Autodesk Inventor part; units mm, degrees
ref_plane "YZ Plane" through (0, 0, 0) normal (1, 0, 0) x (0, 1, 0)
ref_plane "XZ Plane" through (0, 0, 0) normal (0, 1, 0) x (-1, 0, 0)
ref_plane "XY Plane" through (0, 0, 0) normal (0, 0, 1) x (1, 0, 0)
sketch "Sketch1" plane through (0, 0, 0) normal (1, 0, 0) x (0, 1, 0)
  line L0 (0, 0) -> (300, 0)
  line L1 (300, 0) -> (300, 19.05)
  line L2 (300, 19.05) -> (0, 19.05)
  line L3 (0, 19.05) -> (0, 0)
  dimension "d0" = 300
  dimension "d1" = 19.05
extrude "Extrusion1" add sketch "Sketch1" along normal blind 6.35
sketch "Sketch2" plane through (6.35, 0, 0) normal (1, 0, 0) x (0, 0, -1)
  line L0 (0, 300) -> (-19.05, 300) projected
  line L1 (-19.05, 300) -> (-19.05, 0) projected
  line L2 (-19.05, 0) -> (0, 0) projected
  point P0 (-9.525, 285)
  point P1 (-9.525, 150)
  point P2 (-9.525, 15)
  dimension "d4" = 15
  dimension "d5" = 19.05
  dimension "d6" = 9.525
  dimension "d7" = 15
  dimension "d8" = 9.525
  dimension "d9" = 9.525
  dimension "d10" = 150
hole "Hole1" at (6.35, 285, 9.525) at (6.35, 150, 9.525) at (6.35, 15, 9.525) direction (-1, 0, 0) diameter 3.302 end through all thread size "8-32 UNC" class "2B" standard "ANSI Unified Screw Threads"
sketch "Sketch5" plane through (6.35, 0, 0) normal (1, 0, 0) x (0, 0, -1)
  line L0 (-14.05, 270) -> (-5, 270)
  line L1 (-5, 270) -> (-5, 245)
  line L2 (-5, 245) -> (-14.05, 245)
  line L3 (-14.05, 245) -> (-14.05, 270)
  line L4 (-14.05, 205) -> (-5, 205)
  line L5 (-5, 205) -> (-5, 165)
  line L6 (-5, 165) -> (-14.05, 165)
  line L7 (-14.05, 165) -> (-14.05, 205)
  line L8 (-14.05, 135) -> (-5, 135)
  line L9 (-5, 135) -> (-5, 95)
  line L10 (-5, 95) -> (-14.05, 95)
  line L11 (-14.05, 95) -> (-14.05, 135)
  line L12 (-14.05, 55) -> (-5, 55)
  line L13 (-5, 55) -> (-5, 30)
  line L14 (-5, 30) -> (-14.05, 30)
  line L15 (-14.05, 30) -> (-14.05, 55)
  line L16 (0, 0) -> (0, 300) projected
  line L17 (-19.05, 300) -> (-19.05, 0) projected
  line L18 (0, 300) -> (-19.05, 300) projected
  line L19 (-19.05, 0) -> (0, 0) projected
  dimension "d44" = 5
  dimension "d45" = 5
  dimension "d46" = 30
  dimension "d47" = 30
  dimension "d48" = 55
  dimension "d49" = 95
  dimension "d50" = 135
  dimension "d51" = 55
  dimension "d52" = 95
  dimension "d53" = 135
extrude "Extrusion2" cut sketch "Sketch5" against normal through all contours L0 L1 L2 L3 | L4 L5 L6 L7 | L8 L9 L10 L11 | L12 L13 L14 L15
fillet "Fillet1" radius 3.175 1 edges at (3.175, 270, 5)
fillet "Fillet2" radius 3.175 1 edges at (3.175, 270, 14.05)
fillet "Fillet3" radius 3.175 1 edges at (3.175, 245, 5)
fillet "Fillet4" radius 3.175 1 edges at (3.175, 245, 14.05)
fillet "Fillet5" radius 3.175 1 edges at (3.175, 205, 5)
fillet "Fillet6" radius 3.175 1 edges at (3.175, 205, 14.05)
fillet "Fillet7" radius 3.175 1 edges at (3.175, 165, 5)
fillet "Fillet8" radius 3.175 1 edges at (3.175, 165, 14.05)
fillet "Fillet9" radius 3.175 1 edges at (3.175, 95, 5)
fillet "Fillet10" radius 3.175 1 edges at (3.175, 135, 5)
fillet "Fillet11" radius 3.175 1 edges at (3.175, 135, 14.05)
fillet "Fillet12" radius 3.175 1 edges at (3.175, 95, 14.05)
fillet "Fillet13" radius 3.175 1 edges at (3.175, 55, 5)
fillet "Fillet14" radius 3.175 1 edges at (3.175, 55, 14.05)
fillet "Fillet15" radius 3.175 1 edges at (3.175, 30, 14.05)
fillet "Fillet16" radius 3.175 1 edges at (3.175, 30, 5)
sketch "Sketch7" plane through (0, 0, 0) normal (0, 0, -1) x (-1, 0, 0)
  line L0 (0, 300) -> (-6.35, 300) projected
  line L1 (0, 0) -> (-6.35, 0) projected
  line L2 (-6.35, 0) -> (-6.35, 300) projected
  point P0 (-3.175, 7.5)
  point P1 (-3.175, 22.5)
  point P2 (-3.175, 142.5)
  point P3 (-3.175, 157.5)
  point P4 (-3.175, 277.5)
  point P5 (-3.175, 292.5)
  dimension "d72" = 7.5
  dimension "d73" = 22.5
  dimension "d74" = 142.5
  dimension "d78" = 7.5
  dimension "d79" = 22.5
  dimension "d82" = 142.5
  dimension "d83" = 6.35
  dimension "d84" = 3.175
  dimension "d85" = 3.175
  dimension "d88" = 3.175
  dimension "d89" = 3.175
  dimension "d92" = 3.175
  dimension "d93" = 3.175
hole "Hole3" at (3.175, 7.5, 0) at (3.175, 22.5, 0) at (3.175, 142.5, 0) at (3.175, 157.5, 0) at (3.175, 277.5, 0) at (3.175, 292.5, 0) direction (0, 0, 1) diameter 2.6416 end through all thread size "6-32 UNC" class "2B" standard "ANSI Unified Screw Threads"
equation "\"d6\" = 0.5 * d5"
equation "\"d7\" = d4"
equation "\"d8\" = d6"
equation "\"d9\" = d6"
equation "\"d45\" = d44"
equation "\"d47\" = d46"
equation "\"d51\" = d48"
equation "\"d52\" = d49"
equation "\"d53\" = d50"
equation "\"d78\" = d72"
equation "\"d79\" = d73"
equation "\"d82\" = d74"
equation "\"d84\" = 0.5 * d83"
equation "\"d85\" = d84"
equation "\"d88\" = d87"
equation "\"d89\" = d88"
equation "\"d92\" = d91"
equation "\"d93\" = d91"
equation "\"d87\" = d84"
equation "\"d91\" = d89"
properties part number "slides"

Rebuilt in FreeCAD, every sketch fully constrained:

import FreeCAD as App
import Part
import Sketcher
from FreeCAD import Vector
Q = App.Units.Quantity


def edges_at(feature, points):
    """Names of the edges that pass closest to the given points."""
    edges = feature.Shape.Edges
    near = lambda p: min(range(len(edges)), key=lambda i: edges[i].distToShape(Part.Vertex(*p))[0])
    return sorted({f"Edge{near(p) + 1}" for p in points})

doc = App.newDocument("Part")
body = doc.addObject("PartDesign::Body", "Body")

# Sketch on YZ plane
sketch1 = body.newObject("Sketcher::SketchObject", "Sketch")
sketch1.AttachmentSupport = (doc.getObject("YZ_Plane"), [""])
sketch1.MapMode = "FlatFace"
sketch1.addGeometry(Part.LineSegment(Vector(0, 19.05, 0), Vector(0, 0, 0)), False)
sketch1.addGeometry(Part.LineSegment(Vector(0, 0, 0), Vector(300, 0, 0)), False)
sketch1.addGeometry(Part.LineSegment(Vector(300, 0, 0), Vector(300, 19.05, 0)), False)
sketch1.addGeometry(Part.LineSegment(Vector(300, 19.05, 0), Vector(0, 19.05, 0)), False)
sketch1.addConstraint(Sketcher.Constraint("Coincident", 0, 2, 1, 1))
sketch1.addConstraint(Sketcher.Constraint("Coincident", 1, 2, 2, 1))
sketch1.addConstraint(Sketcher.Constraint("Coincident", 2, 2, 3, 1))
sketch1.addConstraint(Sketcher.Constraint("Coincident", 3, 2, 0, 1))
sketch1.addConstraint(Sketcher.Constraint("Vertical", 0))
sketch1.addConstraint(Sketcher.Constraint("Horizontal", 1))
sketch1.addConstraint(Sketcher.Constraint("Vertical", 2))
sketch1.addConstraint(Sketcher.Constraint("Horizontal", 3))
sketch1.addConstraint(Sketcher.Constraint("Coincident", 0, 2, -1, 1))
sketch1.addConstraint(Sketcher.Constraint("DistanceY", 0, 2, 0, 1, Q("0.75 in")))
sketch1.addConstraint(Sketcher.Constraint("DistanceX", 1, 1, 1, 2, Q("300 mm")))
pad1 = body.newObject("PartDesign::Pad", "Pad")
pad1.Profile = sketch1
pad1.Length = Q("0.25 in")

# Sketch on YZ plane
sketch2 = body.newObject("Sketcher::SketchObject", "Sketch001")
sketch2.AttachmentSupport = (doc.getObject("YZ_Plane"), [""])
sketch2.MapMode = "FlatFace"
sketch2.AttachmentOffset = App.Placement(Vector(0, 0, 0.25 * 25.4), App.Rotation())
sketch2.addGeometry(Part.Circle(Vector(285, 9.525, 0), Vector(0, 0, 1), 1.651), False)
sketch2.addGeometry(Part.Circle(Vector(150, 9.525, 0), Vector(0, 0, 1), 1.651), False)
sketch2.addGeometry(Part.Circle(Vector(15, 9.525, 0), Vector(0, 0, 1), 1.651), False)
sketch2.addConstraint(Sketcher.Constraint("Equal", 0, 1))
sketch2.addConstraint(Sketcher.Constraint("Equal", 1, 2))
sketch2.addConstraint(Sketcher.Constraint("Horizontal", 0, 3, 1, 3))
sketch2.addConstraint(Sketcher.Constraint("Horizontal", 1, 3, 2, 3))
sketch2.addConstraint(Sketcher.Constraint("Diameter", 0, Q("0.13 in")))
sketch2.addConstraint(Sketcher.Constraint("DistanceY", -1, 1, 0, 3, Q("0.375 in")))
sketch2.addConstraint(Sketcher.Constraint("DistanceX", -1, 1, 1, 3, Q("5.9055 in")))
sketch2.addConstraint(Sketcher.Constraint("DistanceX", -1, 1, 0, 3, Q("285 mm")))
sketch2.addConstraint(Sketcher.Constraint("DistanceX", -1, 1, 2, 3, Q("15 mm")))
doc.recompute()
hole = body.newObject("PartDesign::Hole", "Hole")
hole.Profile = sketch2
hole.ThreadType = "None"
hole.Diameter = Q("0.13 in")
hole.DepthType = "ThroughAll"

# Sketch on YZ plane
sketch3 = body.newObject("Sketcher::SketchObject", "Sketch002")
sketch3.AttachmentSupport = (doc.getObject("YZ_Plane"), [""])
sketch3.MapMode = "FlatFace"
sketch3.AttachmentOffset = App.Placement(Vector(0, 0, 0.25 * 25.4), App.Rotation())
sketch3.addGeometry(Part.LineSegment(Vector(270, 5, 0), Vector(270, 14.05, 0)), False)
sketch3.addGeometry(Part.LineSegment(Vector(270, 14.05, 0), Vector(245, 14.05, 0)), False)
sketch3.addGeometry(Part.LineSegment(Vector(245, 14.05, 0), Vector(245, 5, 0)), False)
sketch3.addGeometry(Part.LineSegment(Vector(245, 5, 0), Vector(270, 5, 0)), False)
sketch3.addGeometry(Part.LineSegment(Vector(205, 5, 0), Vector(205, 14.05, 0)), False)
sketch3.addGeometry(Part.LineSegment(Vector(205, 14.05, 0), Vector(165, 14.05, 0)), False)
sketch3.addGeometry(Part.LineSegment(Vector(165, 14.05, 0), Vector(165, 5, 0)), False)
sketch3.addGeometry(Part.LineSegment(Vector(165, 5, 0), Vector(205, 5, 0)), False)
sketch3.addGeometry(Part.LineSegment(Vector(135, 5, 0), Vector(135, 14.05, 0)), False)
sketch3.addGeometry(Part.LineSegment(Vector(135, 14.05, 0), Vector(95, 14.05, 0)), False)
sketch3.addGeometry(Part.LineSegment(Vector(95, 14.05, 0), Vector(95, 5, 0)), False)
sketch3.addGeometry(Part.LineSegment(Vector(95, 5, 0), Vector(135, 5, 0)), False)
sketch3.addGeometry(Part.LineSegment(Vector(55, 5, 0), Vector(55, 14.05, 0)), False)
sketch3.addGeometry(Part.LineSegment(Vector(55, 14.05, 0), Vector(30, 14.05, 0)), False)
sketch3.addGeometry(Part.LineSegment(Vector(30, 14.05, 0), Vector(30, 5, 0)), False)
sketch3.addGeometry(Part.LineSegment(Vector(30, 5, 0), Vector(55, 5, 0)), False)
sketch3.addConstraint(Sketcher.Constraint("Coincident", 0, 2, 1, 1))
sketch3.addConstraint(Sketcher.Constraint("Coincident", 1, 2, 2, 1))
sketch3.addConstraint(Sketcher.Constraint("Coincident", 2, 2, 3, 1))
sketch3.addConstraint(Sketcher.Constraint("Coincident", 3, 2, 0, 1))
sketch3.addConstraint(Sketcher.Constraint("Coincident", 4, 2, 5, 1))
sketch3.addConstraint(Sketcher.Constraint("Coincident", 5, 2, 6, 1))
sketch3.addConstraint(Sketcher.Constraint("Coincident", 6, 2, 7, 1))
sketch3.addConstraint(Sketcher.Constraint("Coincident", 7, 2, 4, 1))
sketch3.addConstraint(Sketcher.Constraint("Coincident", 8, 2, 9, 1))
sketch3.addConstraint(Sketcher.Constraint("Coincident", 9, 2, 10, 1))
sketch3.addConstraint(Sketcher.Constraint("Coincident", 10, 2, 11, 1))
sketch3.addConstraint(Sketcher.Constraint("Coincident", 11, 2, 8, 1))
sketch3.addConstraint(Sketcher.Constraint("Coincident", 12, 2, 13, 1))
sketch3.addConstraint(Sketcher.Constraint("Coincident", 13, 2, 14, 1))
sketch3.addConstraint(Sketcher.Constraint("Coincident", 14, 2, 15, 1))
sketch3.addConstraint(Sketcher.Constraint("Coincident", 15, 2, 12, 1))
sketch3.addConstraint(Sketcher.Constraint("Vertical", 0))
sketch3.addConstraint(Sketcher.Constraint("Horizontal", 1))
sketch3.addConstraint(Sketcher.Constraint("Vertical", 2))
sketch3.addConstraint(Sketcher.Constraint("Horizontal", 3))
sketch3.addConstraint(Sketcher.Constraint("Vertical", 4))
sketch3.addConstraint(Sketcher.Constraint("Horizontal", 5))
sketch3.addConstraint(Sketcher.Constraint("Vertical", 6))
sketch3.addConstraint(Sketcher.Constraint("Horizontal", 7))
sketch3.addConstraint(Sketcher.Constraint("Vertical", 8))
sketch3.addConstraint(Sketcher.Constraint("Horizontal", 9))
sketch3.addConstraint(Sketcher.Constraint("Vertical", 10))
sketch3.addConstraint(Sketcher.Constraint("Horizontal", 11))
sketch3.addConstraint(Sketcher.Constraint("Vertical", 12))
sketch3.addConstraint(Sketcher.Constraint("Horizontal", 13))
sketch3.addConstraint(Sketcher.Constraint("Vertical", 14))
sketch3.addConstraint(Sketcher.Constraint("Horizontal", 15))
sketch3.addConstraint(Sketcher.Constraint("Horizontal", 1, 2, 4, 2))
sketch3.addConstraint(Sketcher.Constraint("Horizontal", 3, 2, 6, 2))
sketch3.addConstraint(Sketcher.Constraint("Horizontal", 5, 2, 8, 2))
sketch3.addConstraint(Sketcher.Constraint("Horizontal", 7, 2, 10, 2))
sketch3.addConstraint(Sketcher.Constraint("Horizontal", 9, 2, 12, 2))
sketch3.addConstraint(Sketcher.Constraint("Horizontal", 11, 2, 14, 2))
sketch3.addConstraint(Sketcher.Constraint("Equal", 7, 9))
sketch3.addConstraint(Sketcher.Constraint("Equal", 3, 13))
sketch3.addConstraint(Sketcher.Constraint("DistanceX", -1, 1, 13, 2, Q("1.1811 in")))
sketch3.addConstraint(Sketcher.Constraint("DistanceX", 8, 2, 5, 2, Q("1.1811 in")))
sketch3.addConstraint(Sketcher.Constraint("DistanceY", -1, 1, 2, 2, Q("5 mm")))
sketch3.addConstraint(Sketcher.Constraint("DistanceX", -1, 1, 8, 2, Q("135 mm")))
sketch3.addConstraint(Sketcher.Constraint("DistanceX", -1, 1, 9, 2, Q("95 mm")))
sketch3.addConstraint(Sketcher.Constraint("DistanceX", -1, 1, 12, 2, Q("55 mm")))
sketch3.addConstraint(Sketcher.Constraint("DistanceY", 0, 1, 0, 2, Q("0.3563 in")))
sketch3.addConstraint(Sketcher.Constraint("DistanceX", 4, 2, 1, 2, Q("1.5748 in")))
pocket1 = body.newObject("PartDesign::Pocket", "Pocket")
pocket1.Profile = sketch3
pocket1.Type = "ThroughAll"
doc.recompute()

fillet = body.newObject("PartDesign::Fillet", "Fillet")
fillet.Base = (pocket1, edges_at(pocket1, [(3.175, 270, 5)]))
fillet.Radius = Q("0.125 in")
doc.recompute()

fillet2 = body.newObject("PartDesign::Fillet", "Fillet001")
fillet2.Base = (fillet, edges_at(fillet, [(3.175, 270, 14.05)]))
fillet2.Radius = Q("0.125 in")
doc.recompute()

fillet3 = body.newObject("PartDesign::Fillet", "Fillet002")
fillet3.Base = (fillet2, edges_at(fillet2, [(3.175, 245, 5)]))
fillet3.Radius = Q("0.125 in")
doc.recompute()

fillet4 = body.newObject("PartDesign::Fillet", "Fillet003")
fillet4.Base = (fillet3, edges_at(fillet3, [(3.175, 245, 14.05)]))
fillet4.Radius = Q("0.125 in")
doc.recompute()

fillet5 = body.newObject("PartDesign::Fillet", "Fillet004")
fillet5.Base = (fillet4, edges_at(fillet4, [(3.175, 205, 5)]))
fillet5.Radius = Q("0.125 in")
doc.recompute()

fillet6 = body.newObject("PartDesign::Fillet", "Fillet005")
fillet6.Base = (fillet5, edges_at(fillet5, [(3.175, 205, 14.05)]))
fillet6.Radius = Q("0.125 in")
doc.recompute()

fillet7 = body.newObject("PartDesign::Fillet", "Fillet006")
fillet7.Base = (fillet6, edges_at(fillet6, [(3.175, 165, 5)]))
fillet7.Radius = Q("0.125 in")
doc.recompute()

fillet8 = body.newObject("PartDesign::Fillet", "Fillet007")
fillet8.Base = (fillet7, edges_at(fillet7, [(3.175, 165, 14.05)]))
fillet8.Radius = Q("0.125 in")
doc.recompute()

fillet9 = body.newObject("PartDesign::Fillet", "Fillet008")
fillet9.Base = (fillet8, edges_at(fillet8, [(3.175, 95, 5)]))
fillet9.Radius = Q("0.125 in")
doc.recompute()

fillet10 = body.newObject("PartDesign::Fillet", "Fillet009")
fillet10.Base = (fillet9, edges_at(fillet9, [(3.175, 135, 5)]))
fillet10.Radius = Q("0.125 in")
doc.recompute()

fillet11 = body.newObject("PartDesign::Fillet", "Fillet010")
fillet11.Base = (fillet10, edges_at(fillet10, [(3.175, 135, 14.05)]))
fillet11.Radius = Q("0.125 in")
doc.recompute()

fillet12 = body.newObject("PartDesign::Fillet", "Fillet011")
fillet12.Base = (fillet11, edges_at(fillet11, [(3.175, 95, 14.05)]))
fillet12.Radius = Q("0.125 in")
doc.recompute()

fillet13 = body.newObject("PartDesign::Fillet", "Fillet012")
fillet13.Base = (fillet12, edges_at(fillet12, [(3.175, 55, 5)]))
fillet13.Radius = Q("0.125 in")
doc.recompute()

fillet14 = body.newObject("PartDesign::Fillet", "Fillet013")
fillet14.Base = (fillet13, edges_at(fillet13, [(3.175, 55, 14.05)]))
fillet14.Radius = Q("0.125 in")
doc.recompute()

fillet15 = body.newObject("PartDesign::Fillet", "Fillet014")
fillet15.Base = (fillet14, edges_at(fillet14, [(3.175, 30, 14.05)]))
fillet15.Radius = Q("0.125 in")
doc.recompute()

fillet16 = body.newObject("PartDesign::Fillet", "Fillet015")
fillet16.Base = (fillet15, edges_at(fillet15, [(3.175, 30, 5)]))
fillet16.Radius = Q("0.125 in")

# Sketch on XY plane
sketch4 = body.newObject("Sketcher::SketchObject", "Sketch003")
sketch4.AttachmentSupport = (doc.getObject("XY_Plane"), [""])
sketch4.MapMode = "FlatFace"
sketch4.addGeometry(Part.Circle(Vector(3.175, 7.5, 0), Vector(0, 0, 1), 1.3208), False)
sketch4.addGeometry(Part.Circle(Vector(3.175, 22.5, 0), Vector(0, 0, 1), 1.3208), False)
sketch4.addGeometry(Part.Circle(Vector(3.175, 142.5, 0), Vector(0, 0, 1), 1.3208), False)
sketch4.addGeometry(Part.Circle(Vector(3.175, 157.5, 0), Vector(0, 0, 1), 1.3208), False)
sketch4.addGeometry(Part.Circle(Vector(3.175, 277.5, 0), Vector(0, 0, 1), 1.3208), False)
sketch4.addGeometry(Part.Circle(Vector(3.175, 292.5, 0), Vector(0, 0, 1), 1.3208), False)
sketch4.addConstraint(Sketcher.Constraint("Equal", 0, 1))
sketch4.addConstraint(Sketcher.Constraint("Equal", 1, 2))
sketch4.addConstraint(Sketcher.Constraint("Equal", 2, 3))
sketch4.addConstraint(Sketcher.Constraint("Equal", 3, 4))
sketch4.addConstraint(Sketcher.Constraint("Equal", 4, 5))
sketch4.addConstraint(Sketcher.Constraint("Vertical", 0, 3, 1, 3))
sketch4.addConstraint(Sketcher.Constraint("Vertical", 1, 3, 2, 3))
sketch4.addConstraint(Sketcher.Constraint("Vertical", 2, 3, 3, 3))
sketch4.addConstraint(Sketcher.Constraint("Vertical", 3, 3, 4, 3))
sketch4.addConstraint(Sketcher.Constraint("Vertical", 4, 3, 5, 3))
sketch4.addConstraint(Sketcher.Constraint("Diameter", 0, Q("0.104 in")))
sketch4.addConstraint(Sketcher.Constraint("DistanceX", -1, 1, 0, 3, Q("0.125 in")))
sketch4.addConstraint(Sketcher.Constraint("DistanceY", -1, 1, 4, 3, Q("10.9252 in")))
sketch4.addConstraint(Sketcher.Constraint("DistanceY", 1, 3, 2, 3, Q("4.7244 in")))
sketch4.addConstraint(Sketcher.Constraint("DistanceY", 0, 3, 3, 3, Q("5.9055 in")))
sketch4.addConstraint(Sketcher.Constraint("DistanceY", 3, 3, 4, 3, Q("4.7244 in")))
sketch4.addConstraint(Sketcher.Constraint("DistanceY", 2, 3, 5, 3, Q("5.9055 in")))
sketch4.addConstraint(Sketcher.Constraint("DistanceY", -1, 1, 1, 3, Q("22.5 mm")))
doc.recompute()
hole2 = body.newObject("PartDesign::Hole", "Hole001")
hole2.Profile = sketch4
hole2.ThreadType = "None"
hole2.Diameter = Q("0.104 in")
hole2.DepthType = "ThroughAll"
hole2.Reversed = True

doc.recompute()
